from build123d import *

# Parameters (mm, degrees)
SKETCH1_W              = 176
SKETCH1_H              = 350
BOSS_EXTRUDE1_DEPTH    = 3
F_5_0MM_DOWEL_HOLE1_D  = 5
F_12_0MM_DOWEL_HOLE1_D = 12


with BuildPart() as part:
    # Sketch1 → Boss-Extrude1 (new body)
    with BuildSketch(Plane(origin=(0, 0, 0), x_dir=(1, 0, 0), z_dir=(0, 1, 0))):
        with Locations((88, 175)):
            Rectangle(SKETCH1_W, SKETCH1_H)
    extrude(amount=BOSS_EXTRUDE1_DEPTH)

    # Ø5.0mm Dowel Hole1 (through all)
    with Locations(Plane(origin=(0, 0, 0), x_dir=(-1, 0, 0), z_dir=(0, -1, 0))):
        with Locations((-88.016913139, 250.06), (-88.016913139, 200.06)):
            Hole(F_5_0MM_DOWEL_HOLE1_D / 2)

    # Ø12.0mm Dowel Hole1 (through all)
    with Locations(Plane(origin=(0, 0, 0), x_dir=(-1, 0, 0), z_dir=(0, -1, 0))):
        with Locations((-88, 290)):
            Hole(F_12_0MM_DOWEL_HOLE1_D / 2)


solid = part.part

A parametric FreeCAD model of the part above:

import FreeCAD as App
import Part
import Sketcher
from FreeCAD import Vector
Q = App.Units.Quantity


def add_polygon(sketch, points):
    """Adds a closed chain of lines whose ends are joined by coincident constraints."""
    first, n = sketch.GeometryCount, len(points)
    for a, b in zip(points, points[1:] + points[:1]):
        sketch.addGeometry(Part.LineSegment(App.Vector(*a, 0), App.Vector(*b, 0)), False)
    for i in range(n):
        sketch.addConstraint(Sketcher.Constraint("Coincident", first + i, 2, first + (i + 1) % n, 1))

doc = App.newDocument("Part")
params = doc.addObject("Spreadsheet::Sheet", "Params")
for row, (alias, value) in enumerate([
    ("sketch1_width", "176 mm"),
    ("sketch1_height", "350 mm"),
    ("pad1_length", "3 mm"),
    ("sketch2_diameter", "5 mm"),
    ("hole_diameter", "5 mm"),
    ("sketch3_diameter", "12 mm"),
    ("hole2_diameter", "12 mm"),
], start=1):
    params.set(f"A{row}", alias)
    params.set(f"B{row}", "=" + value)
    params.setAlias(f"B{row}", alias)

body = doc.addObject("PartDesign::Body", "Body")

# Sketch on XZ plane
sketch1 = body.newObject("Sketcher::SketchObject", "Sketch")
sketch1.AttachmentSupport = (doc.getObject("XZ_Plane"), [""])
sketch1.MapMode = "FlatFace"
add_polygon(sketch1, [(0, -350), (0, 0), (176, 0), (176, -350)])  # lines 0-3
sketch1.addConstraint([
    Sketcher.Constraint("Vertical", 0),
    Sketcher.Constraint("Horizontal", 1),
    Sketcher.Constraint("Vertical", 2),
    Sketcher.Constraint("Horizontal", 3),
    Sketcher.Constraint("Coincident", 0, 2, -1, 1),
    Sketcher.Constraint("DistanceX", 1, 1, 1, 2, Q("176 mm")),
    Sketcher.Constraint("DistanceY", 0, 1, 0, 2, Q("350 mm")),
])
sketch1.setExpression("Constraints[9]", "Params.sketch1_width")
sketch1.setExpression("Constraints[10]", "Params.sketch1_height")
pad1 = body.newObject("PartDesign::Pad", "Pad")
pad1.Profile = sketch1
pad1.setExpression("Length", "Params.pad1_length")
pad1.Reversed = True

# Sketch on XZ plane
sketch2 = body.newObject("Sketcher::SketchObject", "Sketch001")
sketch2.AttachmentSupport = (doc.getObject("XZ_Plane"), [""])
sketch2.MapMode = "FlatFace"
sketch2.addGeometry([
    Part.Circle(Vector(88, -250.1, 0), Vector(0, 0, 1), 2.5),
    Part.Circle(Vector(88, -200.1, 0), Vector(0, 0, 1), 2.5),
], False)
sketch2.addConstraint([
    Sketcher.Constraint("Equal", 0, 1),
    Sketcher.Constraint("Vertical", 0, 3, 1, 3),
    Sketcher.Constraint("Diameter", 0, Q("5 mm")),
    Sketcher.Constraint("DistanceY", 0, 3, 1, 3, Q("50 mm")),
    Sketcher.Constraint("DistanceY", 0, 3, -1, 1, Q("250.06 mm")),
    Sketcher.Constraint("DistanceX", -1, 1, 0, 3, Q("88.016913 mm")),
])
sketch2.setExpression("Constraints[2]", "Params.sketch2_diameter")
doc.recompute()
hole = body.newObject("PartDesign::Hole", "Hole")
hole.Profile = sketch2
hole.ThreadType = "None"
hole.setExpression("Diameter", "Params.hole_diameter")
hole.DepthType = "ThroughAll"

# Sketch on XZ plane
sketch3 = body.newObject("Sketcher::SketchObject", "Sketch002")
sketch3.AttachmentSupport = (doc.getObject("XZ_Plane"), [""])
sketch3.MapMode = "FlatFace"
sketch3.addGeometry(Part.Circle(Vector(88, -290, 0), Vector(0, 0, 1), 6), False)
sketch3.addConstraint([
    Sketcher.Constraint("Diameter", 0, Q("12 mm")),
    Sketcher.Constraint("DistanceX", -1, 1, 0, 3, Q("88 mm")),
    Sketcher.Constraint("DistanceY", 0, 3, -1, 1, Q("290 mm")),
])
sketch3.setExpression("Constraints[0]", "Params.sketch3_diameter")
doc.recompute()
hole2 = body.newObject("PartDesign::Hole", "Hole001")
hole2.Profile = sketch3
hole2.ThreadType = "None"
hole2.setExpression("Diameter", "Params.hole2_diameter")
hole2.DepthType = "ThroughAll"

doc.recompute()
